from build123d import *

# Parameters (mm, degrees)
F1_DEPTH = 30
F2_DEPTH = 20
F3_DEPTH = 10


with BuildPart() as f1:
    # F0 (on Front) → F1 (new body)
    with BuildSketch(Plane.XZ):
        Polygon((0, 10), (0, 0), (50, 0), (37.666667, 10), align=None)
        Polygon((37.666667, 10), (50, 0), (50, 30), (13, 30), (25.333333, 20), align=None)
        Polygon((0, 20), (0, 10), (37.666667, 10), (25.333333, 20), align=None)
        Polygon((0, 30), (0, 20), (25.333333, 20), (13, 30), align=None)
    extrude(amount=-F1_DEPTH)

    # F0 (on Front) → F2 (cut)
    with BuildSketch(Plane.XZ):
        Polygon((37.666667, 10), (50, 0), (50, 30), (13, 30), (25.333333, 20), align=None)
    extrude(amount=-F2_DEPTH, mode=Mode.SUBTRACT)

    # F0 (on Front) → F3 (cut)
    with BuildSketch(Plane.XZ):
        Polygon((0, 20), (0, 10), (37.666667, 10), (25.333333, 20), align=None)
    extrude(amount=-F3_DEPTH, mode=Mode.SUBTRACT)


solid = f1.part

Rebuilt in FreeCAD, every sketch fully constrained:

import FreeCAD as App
import Part
import Sketcher
Q = App.Units.Quantity


def add_polygon(sketch, points):
    """Adds a closed chain of lines whose ends are joined by coincident constraints."""
    first, n = sketch.GeometryCount, len(points)
    for a, b in zip(points, points[1:] + points[:1]):
        sketch.addGeometry(Part.LineSegment(App.Vector(*a, 0), App.Vector(*b, 0)), False)
    for i in range(n):
        sketch.addConstraint(Sketcher.Constraint("Coincident", first + i, 2, first + (i + 1) % n, 1))

doc = App.newDocument("Part")
body = doc.addObject("PartDesign::Body", "Body")

sketch1 = doc.addObject("Sketcher::SketchObject", "Sketch")
body.addObject(sketch1)
sketch1.AttachmentSupport = (doc.XZ_Plane, [""])
sketch1.MapMode = "FlatFace"
add_polygon(sketch1, [(0, 0), (50, 0), (50, 30), (0, 30)])
sketch1.addConstraint([
    Sketcher.Constraint("Horizontal", 0),
    Sketcher.Constraint("Vertical", 1),
    Sketcher.Constraint("Horizontal", 2),
    Sketcher.Constraint("Vertical", 3),
    Sketcher.Constraint("Coincident", 3, 2, -1, 1),
    Sketcher.Constraint("DistanceX", 0, 1, 0, 2, Q("50 mm")),
    Sketcher.Constraint("DistanceY", 1, 1, 1, 2, Q("30 mm")),
])
pad1 = doc.addObject("PartDesign::Pad", "Pad")
body.addObject(pad1)
pad1.Profile = sketch1
pad1.Length = 30
pad1.Reversed = True

sketch2 = doc.addObject("Sketcher::SketchObject", "Sketch001")
body.addObject(sketch2)
sketch2.AttachmentSupport = (doc.XZ_Plane, [""])
sketch2.MapMode = "FlatFace"
add_polygon(sketch2, [(38, 10), (50, 0), (50, 30), (13, 30), (25, 20)])
sketch2.addConstraint([
    Sketcher.Constraint("Vertical", 1),
    Sketcher.Constraint("Horizontal", 2),
    Sketcher.Constraint("PointOnObject", 0, 2, -1),
    Sketcher.Constraint("Parallel", 0, 3),
    Sketcher.Constraint("Parallel", 3, 4),
    Sketcher.Constraint("Equal", 0, 3),
    Sketcher.Constraint("Equal", 3, 4),
    Sketcher.Constraint("DistanceX", 2, 2, 2, 1, Q("37 mm")),
    Sketcher.Constraint("DistanceY", 1, 1, 1, 2, Q("30 mm")),
    Sketcher.Constraint("DistanceX", -1, 1, 0, 2, Q("50 mm")),
])
pocket1 = doc.addObject("PartDesign::Pocket", "Pocket")
body.addObject(pocket1)
pocket1.Profile = sketch2
pocket1.Length = 20

sketch3 = doc.addObject("Sketcher::SketchObject", "Sketch002")
body.addObject(sketch3)
sketch3.AttachmentSupport = (doc.XZ_Plane, [""])
sketch3.MapMode = "FlatFace"
add_polygon(sketch3, [(0, 20), (0, 10), (38, 10), (25, 20)])
sketch3.addConstraint([
    Sketcher.Constraint("Vertical", 0),
    Sketcher.Constraint("Horizontal", 1),
    Sketcher.Constraint("Horizontal", 3),
    Sketcher.Constraint("PointOnObject", 0, 2, -2),
    Sketcher.Constraint("DistanceY", 0, 2, 0, 1, Q("10 mm")),
    Sketcher.Constraint("DistanceY", -1, 1, 0, 2, Q("10 mm")),
    Sketcher.Constraint("DistanceX", 1, 1, 1, 2, Q("37.666667 mm")),
    Sketcher.Constraint("DistanceX", 3, 2, 3, 1, Q("25.333333 mm")),
])
pocket2 = doc.addObject("PartDesign::Pocket", "Pocket001")
body.addObject(pocket2)
pocket2.Profile = sketch3
pocket2.Length = 10

doc.recompute()
